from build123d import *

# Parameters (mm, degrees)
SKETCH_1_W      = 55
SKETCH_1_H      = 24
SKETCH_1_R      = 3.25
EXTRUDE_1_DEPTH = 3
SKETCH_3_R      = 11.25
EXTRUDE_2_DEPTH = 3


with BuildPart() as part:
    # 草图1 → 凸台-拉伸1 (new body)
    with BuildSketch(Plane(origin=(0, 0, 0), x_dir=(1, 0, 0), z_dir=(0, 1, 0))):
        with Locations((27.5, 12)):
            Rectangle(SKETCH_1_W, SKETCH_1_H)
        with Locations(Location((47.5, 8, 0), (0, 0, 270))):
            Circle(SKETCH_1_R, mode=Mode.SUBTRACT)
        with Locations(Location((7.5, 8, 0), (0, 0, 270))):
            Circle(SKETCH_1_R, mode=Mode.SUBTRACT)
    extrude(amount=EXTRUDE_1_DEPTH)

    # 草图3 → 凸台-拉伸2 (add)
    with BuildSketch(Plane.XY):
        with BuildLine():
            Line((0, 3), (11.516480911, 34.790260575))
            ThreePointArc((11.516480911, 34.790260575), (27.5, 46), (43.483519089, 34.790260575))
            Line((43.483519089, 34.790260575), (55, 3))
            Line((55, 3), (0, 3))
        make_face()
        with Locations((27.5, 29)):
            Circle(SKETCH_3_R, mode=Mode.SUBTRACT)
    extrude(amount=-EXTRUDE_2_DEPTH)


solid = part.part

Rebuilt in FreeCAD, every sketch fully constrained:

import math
import FreeCAD as App
import Part
import Sketcher
from FreeCAD import Vector


def add_polygon(sketch, points):
    """Adds a closed chain of lines whose ends are joined by coincident constraints."""
    first, n = sketch.GeometryCount, len(points)
    for a, b in zip(points, points[1:] + points[:1]):
        sketch.addGeometry(Part.LineSegment(App.Vector(*a, 0), App.Vector(*b, 0)), False)
    for i in range(n):
        sketch.addConstraint(Sketcher.Constraint("Coincident", first + i, 2, first + (i + 1) % n, 1))

doc = App.newDocument("Part")
body = doc.addObject("PartDesign::Body", "Body")

# Sketch on XZ plane
sketch1 = doc.addObject("Sketcher::SketchObject", "Sketch")
body.addObject(sketch1)
sketch1.AttachmentSupport = (doc.XZ_Plane, [""])
sketch1.MapMode = "FlatFace"
add_polygon(sketch1, [(0, -24), (0, 0), (55, 0), (55, -24)])  # lines 0-3
sketch1.addGeometry(Part.Circle(Vector(7.5, -8, 0), Vector(0, 0, 1), 3.2), False)  # 4
sketch1.addGeometry(Part.Circle(Vector(47.5, -8, 0), Vector(0, 0, 1), 3.2), False)  # 5
sketch1.addConstraint([
    Sketcher.Constraint("Vertical", 0),
    Sketcher.Constraint("Horizontal", 1),
    Sketcher.Constraint("Vertical", 2),
    Sketcher.Constraint("Horizontal", 3),
    Sketcher.Constraint("Coincident", 0, 2, -1, 1),
    Sketcher.Constraint("Equal", 4, 5),
    Sketcher.Constraint("Horizontal", 4, 3, 5, 3),
    Sketcher.Constraint("Diameter", 4, 6.5),
    Sketcher.Constraint("DistanceX", 1, 1, 1, 2, 55.0),
    Sketcher.Constraint("DistanceY", 0, 1, 0, 2, 24.0),
    Sketcher.Constraint("DistanceY", 4, 3, -1, 1, 8.0),
    Sketcher.Constraint("DistanceX", 4, 3, 5, 3, 40.0),
    Sketcher.Constraint("DistanceX", -1, 1, 4, 3, 7.5),
])
pad1 = doc.addObject("PartDesign::Pad", "Pad")
body.addObject(pad1)
pad1.Profile = sketch1
pad1.Length = 3
pad1.Reversed = True

# Sketch on XY plane
sketch2 = doc.addObject("Sketcher::SketchObject", "Sketch001")
body.addObject(sketch2)
sketch2.AttachmentSupport = (doc.XY_Plane, [""])
sketch2.MapMode = "FlatFace"
sketch2.addGeometry([
    Part.LineSegment(Vector(12, 35, 0), Vector(0, 3, 0)),  # 0
    Part.LineSegment(Vector(0, 3, 0), Vector(55, 3, 0)),  # 1
    Part.LineSegment(Vector(55, 3, 0), Vector(43, 35, 0)),  # 2
    Part.ArcOfCircle(Part.Circle(Vector(28, 29, 0), Vector(0, 0, 1), 17), math.radians(20), math.radians(160)),  # 3
    Part.Circle(Vector(28, 29, 0), Vector(0, 0, 1), 11),  # 4
], False)
sketch2.addConstraint([
    Sketcher.Constraint("Coincident", 0, 2, 1, 1),
    Sketcher.Constraint("Coincident", 1, 2, 2, 1),
    Sketcher.Constraint("Tangent", 2, 2, 3, 1),
    Sketcher.Constraint("Tangent", 3, 2, 0, 1),
    Sketcher.Constraint("Horizontal", 1),
    Sketcher.Constraint("Coincident", 4, 3, 3, 3),
    Sketcher.Constraint("PointOnObject", 0, 2, -2),
    Sketcher.Constraint("Horizontal", 2, 2, 3, 2),
    Sketcher.Constraint("Radius", 3, 17.0),
    Sketcher.Constraint("Diameter", 4, 22.5),
    Sketcher.Constraint("DistanceX", 1, 1, 1, 2, 55.0),
    Sketcher.Constraint("DistanceY", -1, 1, 3, 3, 29.0),
    Sketcher.Constraint("DistanceY", -1, 1, 0, 2, 3.0),
])
pad2 = doc.addObject("PartDesign::Pad", "Pad001")
body.addObject(pad2)
pad2.Profile = sketch2
pad2.Length = 3
pad2.Reversed = True

doc.recompute()
